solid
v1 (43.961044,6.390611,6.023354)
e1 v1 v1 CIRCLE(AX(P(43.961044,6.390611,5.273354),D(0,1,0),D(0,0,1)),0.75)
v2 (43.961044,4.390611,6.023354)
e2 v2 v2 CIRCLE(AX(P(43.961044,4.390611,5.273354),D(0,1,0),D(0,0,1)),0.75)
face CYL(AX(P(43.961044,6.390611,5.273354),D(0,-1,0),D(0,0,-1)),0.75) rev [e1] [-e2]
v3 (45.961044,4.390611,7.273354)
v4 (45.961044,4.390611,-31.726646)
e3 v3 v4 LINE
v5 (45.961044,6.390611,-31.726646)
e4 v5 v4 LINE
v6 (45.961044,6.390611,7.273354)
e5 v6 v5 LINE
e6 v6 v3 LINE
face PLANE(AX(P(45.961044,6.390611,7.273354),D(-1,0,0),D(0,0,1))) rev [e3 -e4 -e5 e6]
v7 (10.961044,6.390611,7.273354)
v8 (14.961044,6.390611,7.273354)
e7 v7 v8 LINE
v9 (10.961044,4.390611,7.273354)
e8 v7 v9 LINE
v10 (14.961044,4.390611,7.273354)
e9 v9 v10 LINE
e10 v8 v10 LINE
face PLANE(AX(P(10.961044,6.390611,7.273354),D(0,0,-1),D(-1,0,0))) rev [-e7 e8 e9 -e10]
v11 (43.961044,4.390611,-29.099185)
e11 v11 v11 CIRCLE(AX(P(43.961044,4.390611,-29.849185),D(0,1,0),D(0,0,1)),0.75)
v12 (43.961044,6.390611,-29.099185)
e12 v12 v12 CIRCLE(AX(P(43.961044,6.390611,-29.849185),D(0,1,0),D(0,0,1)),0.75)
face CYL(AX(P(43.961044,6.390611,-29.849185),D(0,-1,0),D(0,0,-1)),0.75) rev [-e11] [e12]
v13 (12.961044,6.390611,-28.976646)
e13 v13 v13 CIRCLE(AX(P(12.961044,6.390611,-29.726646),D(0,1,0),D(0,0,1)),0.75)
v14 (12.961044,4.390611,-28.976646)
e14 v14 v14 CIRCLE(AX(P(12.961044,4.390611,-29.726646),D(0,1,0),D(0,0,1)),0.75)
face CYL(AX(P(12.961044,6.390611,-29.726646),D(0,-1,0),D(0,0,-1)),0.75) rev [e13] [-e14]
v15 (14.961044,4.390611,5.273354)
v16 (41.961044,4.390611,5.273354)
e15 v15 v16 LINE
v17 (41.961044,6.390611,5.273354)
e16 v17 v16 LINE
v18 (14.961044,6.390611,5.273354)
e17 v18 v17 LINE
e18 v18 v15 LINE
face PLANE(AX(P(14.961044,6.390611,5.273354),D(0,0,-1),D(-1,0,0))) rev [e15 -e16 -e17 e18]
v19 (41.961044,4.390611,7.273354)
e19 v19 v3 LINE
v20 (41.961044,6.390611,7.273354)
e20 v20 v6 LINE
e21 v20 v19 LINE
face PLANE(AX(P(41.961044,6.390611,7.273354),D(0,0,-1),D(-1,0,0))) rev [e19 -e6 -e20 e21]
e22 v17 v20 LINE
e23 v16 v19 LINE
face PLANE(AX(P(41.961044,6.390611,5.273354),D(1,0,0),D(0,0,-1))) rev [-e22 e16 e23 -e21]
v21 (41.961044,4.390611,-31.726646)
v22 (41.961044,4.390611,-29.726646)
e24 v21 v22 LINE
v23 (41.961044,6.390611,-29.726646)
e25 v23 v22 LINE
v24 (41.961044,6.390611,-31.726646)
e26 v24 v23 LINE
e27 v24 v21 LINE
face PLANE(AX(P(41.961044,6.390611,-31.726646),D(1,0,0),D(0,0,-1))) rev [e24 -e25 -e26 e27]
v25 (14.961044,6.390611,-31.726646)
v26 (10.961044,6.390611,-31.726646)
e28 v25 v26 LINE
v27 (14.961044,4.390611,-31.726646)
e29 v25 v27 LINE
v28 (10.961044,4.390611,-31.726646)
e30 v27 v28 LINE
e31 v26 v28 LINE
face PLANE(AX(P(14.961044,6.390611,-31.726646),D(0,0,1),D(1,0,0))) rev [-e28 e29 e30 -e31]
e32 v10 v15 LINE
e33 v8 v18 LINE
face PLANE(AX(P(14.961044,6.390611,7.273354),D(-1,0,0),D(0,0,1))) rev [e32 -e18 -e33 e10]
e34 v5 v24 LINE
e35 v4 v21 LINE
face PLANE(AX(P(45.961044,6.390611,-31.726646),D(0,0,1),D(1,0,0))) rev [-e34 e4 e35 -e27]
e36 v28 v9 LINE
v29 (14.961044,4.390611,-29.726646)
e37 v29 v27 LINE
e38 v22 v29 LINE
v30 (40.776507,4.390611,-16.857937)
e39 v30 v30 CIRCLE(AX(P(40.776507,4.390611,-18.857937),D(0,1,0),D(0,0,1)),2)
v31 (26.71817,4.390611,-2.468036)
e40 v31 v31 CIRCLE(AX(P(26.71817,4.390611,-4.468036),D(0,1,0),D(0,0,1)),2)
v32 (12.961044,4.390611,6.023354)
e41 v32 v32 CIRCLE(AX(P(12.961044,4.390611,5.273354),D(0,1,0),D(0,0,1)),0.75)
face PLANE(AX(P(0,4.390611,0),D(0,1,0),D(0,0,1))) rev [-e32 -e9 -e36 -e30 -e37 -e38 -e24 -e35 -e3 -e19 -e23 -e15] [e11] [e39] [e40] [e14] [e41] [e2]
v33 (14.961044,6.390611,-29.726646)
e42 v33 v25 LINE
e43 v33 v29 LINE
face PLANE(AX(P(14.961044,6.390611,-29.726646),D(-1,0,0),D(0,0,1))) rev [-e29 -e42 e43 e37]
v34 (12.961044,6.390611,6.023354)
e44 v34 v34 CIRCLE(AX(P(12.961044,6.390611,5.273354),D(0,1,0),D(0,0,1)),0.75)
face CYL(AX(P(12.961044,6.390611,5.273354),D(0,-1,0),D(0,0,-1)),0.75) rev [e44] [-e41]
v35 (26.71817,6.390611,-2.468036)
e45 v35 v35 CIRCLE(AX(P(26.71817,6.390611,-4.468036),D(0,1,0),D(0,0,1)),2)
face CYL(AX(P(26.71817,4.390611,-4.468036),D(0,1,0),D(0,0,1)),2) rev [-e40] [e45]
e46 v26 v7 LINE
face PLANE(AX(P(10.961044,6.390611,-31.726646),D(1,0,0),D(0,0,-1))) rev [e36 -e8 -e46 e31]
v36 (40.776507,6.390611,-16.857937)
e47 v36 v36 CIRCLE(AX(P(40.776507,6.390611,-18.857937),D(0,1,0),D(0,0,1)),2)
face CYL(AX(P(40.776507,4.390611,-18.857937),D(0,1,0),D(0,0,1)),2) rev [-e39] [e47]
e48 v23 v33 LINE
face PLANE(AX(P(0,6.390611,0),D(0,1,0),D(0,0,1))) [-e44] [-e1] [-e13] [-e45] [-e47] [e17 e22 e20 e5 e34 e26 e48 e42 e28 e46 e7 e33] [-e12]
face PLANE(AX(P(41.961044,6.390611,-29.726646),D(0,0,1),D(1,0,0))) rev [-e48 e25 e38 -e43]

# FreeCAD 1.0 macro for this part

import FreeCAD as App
import Part
import Sketcher
from FreeCAD import Vector

doc = App.newDocument("Part")
body = doc.addObject("PartDesign::Body", "Body")

# Sketch on XZ plane
sketch1 = body.newObject("Sketcher::SketchObject", "Sketch")
sketch1.AttachmentSupport = (doc.getObject("XZ_Plane"), [""])
sketch1.MapMode = "FlatFace"
sketch1.AttachmentOffset = App.Placement(Vector(0, 0, -4.390611), App.Rotation())
sketch1.addGeometry([
    Part.LineSegment(Vector(11, -31.7, 0), Vector(11, 7.3, 0)),  # 0
    Part.LineSegment(Vector(11, 7.3, 0), Vector(15, 7.3, 0)),  # 1
    Part.LineSegment(Vector(15, 7.3, 0), Vector(15, 5.3, 0)),  # 2
    Part.LineSegment(Vector(15, 5.3, 0), Vector(42, 5.3, 0)),  # 3
    Part.LineSegment(Vector(42, 5.3, 0), Vector(42, 7.3, 0)),  # 4
    Part.LineSegment(Vector(42, 7.3, 0), Vector(46, 7.3, 0)),  # 5
    Part.LineSegment(Vector(46, 7.3, 0), Vector(46, -31.7, 0)),  # 6
    Part.LineSegment(Vector(46, -31.7, 0), Vector(42, -31.7, 0)),  # 7
    Part.LineSegment(Vector(42, -31.7, 0), Vector(42, -29.7, 0)),  # 8
    Part.LineSegment(Vector(42, -29.7, 0), Vector(15, -29.7, 0)),  # 9
    Part.LineSegment(Vector(15, -29.7, 0), Vector(15, -31.7, 0)),  # 10
    Part.LineSegment(Vector(15, -31.7, 0), Vector(11, -31.7, 0)),  # 11
    Part.Circle(Vector(13, 5.3, 0), Vector(0, 0, 1), 0.8),  # 12
    Part.Circle(Vector(44, 5.3, 0), Vector(0, 0, 1), 0.8),  # 13
    Part.Circle(Vector(13, -29.7, 0), Vector(0, 0, 1), 0.8),  # 14
    Part.Circle(Vector(44, -29.8, 0), Vector(0, 0, 1), 0.8),  # 15
], False)
sketch1.addConstraint([
    Sketcher.Constraint("Coincident", 0, 2, 1, 1),
    Sketcher.Constraint("Coincident", 1, 2, 2, 1),
    Sketcher.Constraint("Coincident", 2, 2, 3, 1),
    Sketcher.Constraint("Coincident", 3, 2, 4, 1),
    Sketcher.Constraint("Coincident", 4, 2, 5, 1),
    Sketcher.Constraint("Coincident", 5, 2, 6, 1),
    Sketcher.Constraint("Coincident", 6, 2, 7, 1),
    Sketcher.Constraint("Coincident", 7, 2, 8, 1),
    Sketcher.Constraint("Coincident", 8, 2, 9, 1),
    Sketcher.Constraint("Coincident", 9, 2, 10, 1),
    Sketcher.Constraint("Coincident", 10, 2, 11, 1),
    Sketcher.Constraint("Coincident", 11, 2, 0, 1),
    Sketcher.Constraint("Vertical", 0),
    Sketcher.Constraint("Horizontal", 1),
    Sketcher.Constraint("Vertical", 2),
    Sketcher.Constraint("Horizontal", 3),
    Sketcher.Constraint("Vertical", 4),
    Sketcher.Constraint("Horizontal", 5),
    Sketcher.Constraint("Vertical", 6),
    Sketcher.Constraint("Horizontal", 7),
    Sketcher.Constraint("Vertical", 8),
    Sketcher.Constraint("Horizontal", 9),
    Sketcher.Constraint("Vertical", 10),
    Sketcher.Constraint("Horizontal", 11),
    Sketcher.Constraint("Equal", 12, 13),
    Sketcher.Constraint("Equal", 13, 14),
    Sketcher.Constraint("Equal", 14, 15),
    Sketcher.Constraint("Horizontal", 12, 3, 13, 3),
    Sketcher.Constraint("Horizontal", 13, 3, 2, 2),
    Sketcher.Constraint("Horizontal", 1, 2, 4, 2),
    Sketcher.Constraint("Horizontal", 14, 3, 8, 2),
    Sketcher.Constraint("Horizontal", 7, 2, 10, 2),
    Sketcher.Constraint("Vertical", 12, 3, 14, 3),
    Sketcher.Constraint("Vertical", 13, 3, 15, 3),
    Sketcher.Constraint("Vertical", 4, 2, 7, 2),
    Sketcher.Constraint("Vertical", 2, 2, 9, 2),
    Sketcher.Constraint("Equal", 1, 5),
    Sketcher.Constraint("Equal", 4, 8),
    Sketcher.Constraint("Diameter", 12, 1.5),
    Sketcher.Constraint("DistanceX", 1, 1, 1, 2, 4.0),
    Sketcher.Constraint("DistanceX", 3, 1, 3, 2, 27.0),
    Sketcher.Constraint("DistanceY", 0, 1, 0, 2, 39.0),
    Sketcher.Constraint("DistanceY", 2, 2, 2, 1, 2.0),
    Sketcher.Constraint("DistanceX", 12, 3, 13, 3, 31.0),
    Sketcher.Constraint("DistanceX", 0, 2, 12, 3, 2.0),
    Sketcher.Constraint("DistanceY", 15, 3, 14, 3, 0.122539),
    Sketcher.Constraint("DistanceX", -1, 1, 12, 3, 12.961044),
    Sketcher.Constraint("DistanceY", -1, 1, 12, 3, 5.273354),
])
pad1 = body.newObject("PartDesign::Pad", "Pad")
pad1.Profile = sketch1
pad1.Length = 2
pad1.Reversed = True

# Sketch on XZ plane
sketch2 = body.newObject("Sketcher::SketchObject", "Sketch001")
sketch2.AttachmentSupport = (doc.getObject("XZ_Plane"), [""])
sketch2.MapMode = "FlatFace"
sketch2.AttachmentOffset = App.Placement(Vector(0, 0, -6.390611), App.Rotation())
sketch2.addGeometry([
    Part.Circle(Vector(26.7, -4.5, 0), Vector(0, 0, 1), 2),
    Part.Circle(Vector(40.8, -18.9, 0), Vector(0, 0, 1), 2),
], False)
sketch2.addConstraint([
    Sketcher.Constraint("Equal", 0, 1),
    Sketcher.Constraint("Diameter", 0, 4.0),
    Sketcher.Constraint("DistanceY", 1, 3, 0, 3, 14.389901),
    Sketcher.Constraint("DistanceX", -1, 1, 0, 3, 26.71817),
    Sketcher.Constraint("DistanceY", 0, 3, -1, 1, 4.468036),
    Sketcher.Constraint("DistanceX", -1, 1, 1, 3, 40.776507),
])
pocket1 = body.newObject("PartDesign::Pocket", "Pocket")
pocket1.Profile = sketch2
pocket1.Length = 2
pocket1.Reversed = True

doc.recompute()
